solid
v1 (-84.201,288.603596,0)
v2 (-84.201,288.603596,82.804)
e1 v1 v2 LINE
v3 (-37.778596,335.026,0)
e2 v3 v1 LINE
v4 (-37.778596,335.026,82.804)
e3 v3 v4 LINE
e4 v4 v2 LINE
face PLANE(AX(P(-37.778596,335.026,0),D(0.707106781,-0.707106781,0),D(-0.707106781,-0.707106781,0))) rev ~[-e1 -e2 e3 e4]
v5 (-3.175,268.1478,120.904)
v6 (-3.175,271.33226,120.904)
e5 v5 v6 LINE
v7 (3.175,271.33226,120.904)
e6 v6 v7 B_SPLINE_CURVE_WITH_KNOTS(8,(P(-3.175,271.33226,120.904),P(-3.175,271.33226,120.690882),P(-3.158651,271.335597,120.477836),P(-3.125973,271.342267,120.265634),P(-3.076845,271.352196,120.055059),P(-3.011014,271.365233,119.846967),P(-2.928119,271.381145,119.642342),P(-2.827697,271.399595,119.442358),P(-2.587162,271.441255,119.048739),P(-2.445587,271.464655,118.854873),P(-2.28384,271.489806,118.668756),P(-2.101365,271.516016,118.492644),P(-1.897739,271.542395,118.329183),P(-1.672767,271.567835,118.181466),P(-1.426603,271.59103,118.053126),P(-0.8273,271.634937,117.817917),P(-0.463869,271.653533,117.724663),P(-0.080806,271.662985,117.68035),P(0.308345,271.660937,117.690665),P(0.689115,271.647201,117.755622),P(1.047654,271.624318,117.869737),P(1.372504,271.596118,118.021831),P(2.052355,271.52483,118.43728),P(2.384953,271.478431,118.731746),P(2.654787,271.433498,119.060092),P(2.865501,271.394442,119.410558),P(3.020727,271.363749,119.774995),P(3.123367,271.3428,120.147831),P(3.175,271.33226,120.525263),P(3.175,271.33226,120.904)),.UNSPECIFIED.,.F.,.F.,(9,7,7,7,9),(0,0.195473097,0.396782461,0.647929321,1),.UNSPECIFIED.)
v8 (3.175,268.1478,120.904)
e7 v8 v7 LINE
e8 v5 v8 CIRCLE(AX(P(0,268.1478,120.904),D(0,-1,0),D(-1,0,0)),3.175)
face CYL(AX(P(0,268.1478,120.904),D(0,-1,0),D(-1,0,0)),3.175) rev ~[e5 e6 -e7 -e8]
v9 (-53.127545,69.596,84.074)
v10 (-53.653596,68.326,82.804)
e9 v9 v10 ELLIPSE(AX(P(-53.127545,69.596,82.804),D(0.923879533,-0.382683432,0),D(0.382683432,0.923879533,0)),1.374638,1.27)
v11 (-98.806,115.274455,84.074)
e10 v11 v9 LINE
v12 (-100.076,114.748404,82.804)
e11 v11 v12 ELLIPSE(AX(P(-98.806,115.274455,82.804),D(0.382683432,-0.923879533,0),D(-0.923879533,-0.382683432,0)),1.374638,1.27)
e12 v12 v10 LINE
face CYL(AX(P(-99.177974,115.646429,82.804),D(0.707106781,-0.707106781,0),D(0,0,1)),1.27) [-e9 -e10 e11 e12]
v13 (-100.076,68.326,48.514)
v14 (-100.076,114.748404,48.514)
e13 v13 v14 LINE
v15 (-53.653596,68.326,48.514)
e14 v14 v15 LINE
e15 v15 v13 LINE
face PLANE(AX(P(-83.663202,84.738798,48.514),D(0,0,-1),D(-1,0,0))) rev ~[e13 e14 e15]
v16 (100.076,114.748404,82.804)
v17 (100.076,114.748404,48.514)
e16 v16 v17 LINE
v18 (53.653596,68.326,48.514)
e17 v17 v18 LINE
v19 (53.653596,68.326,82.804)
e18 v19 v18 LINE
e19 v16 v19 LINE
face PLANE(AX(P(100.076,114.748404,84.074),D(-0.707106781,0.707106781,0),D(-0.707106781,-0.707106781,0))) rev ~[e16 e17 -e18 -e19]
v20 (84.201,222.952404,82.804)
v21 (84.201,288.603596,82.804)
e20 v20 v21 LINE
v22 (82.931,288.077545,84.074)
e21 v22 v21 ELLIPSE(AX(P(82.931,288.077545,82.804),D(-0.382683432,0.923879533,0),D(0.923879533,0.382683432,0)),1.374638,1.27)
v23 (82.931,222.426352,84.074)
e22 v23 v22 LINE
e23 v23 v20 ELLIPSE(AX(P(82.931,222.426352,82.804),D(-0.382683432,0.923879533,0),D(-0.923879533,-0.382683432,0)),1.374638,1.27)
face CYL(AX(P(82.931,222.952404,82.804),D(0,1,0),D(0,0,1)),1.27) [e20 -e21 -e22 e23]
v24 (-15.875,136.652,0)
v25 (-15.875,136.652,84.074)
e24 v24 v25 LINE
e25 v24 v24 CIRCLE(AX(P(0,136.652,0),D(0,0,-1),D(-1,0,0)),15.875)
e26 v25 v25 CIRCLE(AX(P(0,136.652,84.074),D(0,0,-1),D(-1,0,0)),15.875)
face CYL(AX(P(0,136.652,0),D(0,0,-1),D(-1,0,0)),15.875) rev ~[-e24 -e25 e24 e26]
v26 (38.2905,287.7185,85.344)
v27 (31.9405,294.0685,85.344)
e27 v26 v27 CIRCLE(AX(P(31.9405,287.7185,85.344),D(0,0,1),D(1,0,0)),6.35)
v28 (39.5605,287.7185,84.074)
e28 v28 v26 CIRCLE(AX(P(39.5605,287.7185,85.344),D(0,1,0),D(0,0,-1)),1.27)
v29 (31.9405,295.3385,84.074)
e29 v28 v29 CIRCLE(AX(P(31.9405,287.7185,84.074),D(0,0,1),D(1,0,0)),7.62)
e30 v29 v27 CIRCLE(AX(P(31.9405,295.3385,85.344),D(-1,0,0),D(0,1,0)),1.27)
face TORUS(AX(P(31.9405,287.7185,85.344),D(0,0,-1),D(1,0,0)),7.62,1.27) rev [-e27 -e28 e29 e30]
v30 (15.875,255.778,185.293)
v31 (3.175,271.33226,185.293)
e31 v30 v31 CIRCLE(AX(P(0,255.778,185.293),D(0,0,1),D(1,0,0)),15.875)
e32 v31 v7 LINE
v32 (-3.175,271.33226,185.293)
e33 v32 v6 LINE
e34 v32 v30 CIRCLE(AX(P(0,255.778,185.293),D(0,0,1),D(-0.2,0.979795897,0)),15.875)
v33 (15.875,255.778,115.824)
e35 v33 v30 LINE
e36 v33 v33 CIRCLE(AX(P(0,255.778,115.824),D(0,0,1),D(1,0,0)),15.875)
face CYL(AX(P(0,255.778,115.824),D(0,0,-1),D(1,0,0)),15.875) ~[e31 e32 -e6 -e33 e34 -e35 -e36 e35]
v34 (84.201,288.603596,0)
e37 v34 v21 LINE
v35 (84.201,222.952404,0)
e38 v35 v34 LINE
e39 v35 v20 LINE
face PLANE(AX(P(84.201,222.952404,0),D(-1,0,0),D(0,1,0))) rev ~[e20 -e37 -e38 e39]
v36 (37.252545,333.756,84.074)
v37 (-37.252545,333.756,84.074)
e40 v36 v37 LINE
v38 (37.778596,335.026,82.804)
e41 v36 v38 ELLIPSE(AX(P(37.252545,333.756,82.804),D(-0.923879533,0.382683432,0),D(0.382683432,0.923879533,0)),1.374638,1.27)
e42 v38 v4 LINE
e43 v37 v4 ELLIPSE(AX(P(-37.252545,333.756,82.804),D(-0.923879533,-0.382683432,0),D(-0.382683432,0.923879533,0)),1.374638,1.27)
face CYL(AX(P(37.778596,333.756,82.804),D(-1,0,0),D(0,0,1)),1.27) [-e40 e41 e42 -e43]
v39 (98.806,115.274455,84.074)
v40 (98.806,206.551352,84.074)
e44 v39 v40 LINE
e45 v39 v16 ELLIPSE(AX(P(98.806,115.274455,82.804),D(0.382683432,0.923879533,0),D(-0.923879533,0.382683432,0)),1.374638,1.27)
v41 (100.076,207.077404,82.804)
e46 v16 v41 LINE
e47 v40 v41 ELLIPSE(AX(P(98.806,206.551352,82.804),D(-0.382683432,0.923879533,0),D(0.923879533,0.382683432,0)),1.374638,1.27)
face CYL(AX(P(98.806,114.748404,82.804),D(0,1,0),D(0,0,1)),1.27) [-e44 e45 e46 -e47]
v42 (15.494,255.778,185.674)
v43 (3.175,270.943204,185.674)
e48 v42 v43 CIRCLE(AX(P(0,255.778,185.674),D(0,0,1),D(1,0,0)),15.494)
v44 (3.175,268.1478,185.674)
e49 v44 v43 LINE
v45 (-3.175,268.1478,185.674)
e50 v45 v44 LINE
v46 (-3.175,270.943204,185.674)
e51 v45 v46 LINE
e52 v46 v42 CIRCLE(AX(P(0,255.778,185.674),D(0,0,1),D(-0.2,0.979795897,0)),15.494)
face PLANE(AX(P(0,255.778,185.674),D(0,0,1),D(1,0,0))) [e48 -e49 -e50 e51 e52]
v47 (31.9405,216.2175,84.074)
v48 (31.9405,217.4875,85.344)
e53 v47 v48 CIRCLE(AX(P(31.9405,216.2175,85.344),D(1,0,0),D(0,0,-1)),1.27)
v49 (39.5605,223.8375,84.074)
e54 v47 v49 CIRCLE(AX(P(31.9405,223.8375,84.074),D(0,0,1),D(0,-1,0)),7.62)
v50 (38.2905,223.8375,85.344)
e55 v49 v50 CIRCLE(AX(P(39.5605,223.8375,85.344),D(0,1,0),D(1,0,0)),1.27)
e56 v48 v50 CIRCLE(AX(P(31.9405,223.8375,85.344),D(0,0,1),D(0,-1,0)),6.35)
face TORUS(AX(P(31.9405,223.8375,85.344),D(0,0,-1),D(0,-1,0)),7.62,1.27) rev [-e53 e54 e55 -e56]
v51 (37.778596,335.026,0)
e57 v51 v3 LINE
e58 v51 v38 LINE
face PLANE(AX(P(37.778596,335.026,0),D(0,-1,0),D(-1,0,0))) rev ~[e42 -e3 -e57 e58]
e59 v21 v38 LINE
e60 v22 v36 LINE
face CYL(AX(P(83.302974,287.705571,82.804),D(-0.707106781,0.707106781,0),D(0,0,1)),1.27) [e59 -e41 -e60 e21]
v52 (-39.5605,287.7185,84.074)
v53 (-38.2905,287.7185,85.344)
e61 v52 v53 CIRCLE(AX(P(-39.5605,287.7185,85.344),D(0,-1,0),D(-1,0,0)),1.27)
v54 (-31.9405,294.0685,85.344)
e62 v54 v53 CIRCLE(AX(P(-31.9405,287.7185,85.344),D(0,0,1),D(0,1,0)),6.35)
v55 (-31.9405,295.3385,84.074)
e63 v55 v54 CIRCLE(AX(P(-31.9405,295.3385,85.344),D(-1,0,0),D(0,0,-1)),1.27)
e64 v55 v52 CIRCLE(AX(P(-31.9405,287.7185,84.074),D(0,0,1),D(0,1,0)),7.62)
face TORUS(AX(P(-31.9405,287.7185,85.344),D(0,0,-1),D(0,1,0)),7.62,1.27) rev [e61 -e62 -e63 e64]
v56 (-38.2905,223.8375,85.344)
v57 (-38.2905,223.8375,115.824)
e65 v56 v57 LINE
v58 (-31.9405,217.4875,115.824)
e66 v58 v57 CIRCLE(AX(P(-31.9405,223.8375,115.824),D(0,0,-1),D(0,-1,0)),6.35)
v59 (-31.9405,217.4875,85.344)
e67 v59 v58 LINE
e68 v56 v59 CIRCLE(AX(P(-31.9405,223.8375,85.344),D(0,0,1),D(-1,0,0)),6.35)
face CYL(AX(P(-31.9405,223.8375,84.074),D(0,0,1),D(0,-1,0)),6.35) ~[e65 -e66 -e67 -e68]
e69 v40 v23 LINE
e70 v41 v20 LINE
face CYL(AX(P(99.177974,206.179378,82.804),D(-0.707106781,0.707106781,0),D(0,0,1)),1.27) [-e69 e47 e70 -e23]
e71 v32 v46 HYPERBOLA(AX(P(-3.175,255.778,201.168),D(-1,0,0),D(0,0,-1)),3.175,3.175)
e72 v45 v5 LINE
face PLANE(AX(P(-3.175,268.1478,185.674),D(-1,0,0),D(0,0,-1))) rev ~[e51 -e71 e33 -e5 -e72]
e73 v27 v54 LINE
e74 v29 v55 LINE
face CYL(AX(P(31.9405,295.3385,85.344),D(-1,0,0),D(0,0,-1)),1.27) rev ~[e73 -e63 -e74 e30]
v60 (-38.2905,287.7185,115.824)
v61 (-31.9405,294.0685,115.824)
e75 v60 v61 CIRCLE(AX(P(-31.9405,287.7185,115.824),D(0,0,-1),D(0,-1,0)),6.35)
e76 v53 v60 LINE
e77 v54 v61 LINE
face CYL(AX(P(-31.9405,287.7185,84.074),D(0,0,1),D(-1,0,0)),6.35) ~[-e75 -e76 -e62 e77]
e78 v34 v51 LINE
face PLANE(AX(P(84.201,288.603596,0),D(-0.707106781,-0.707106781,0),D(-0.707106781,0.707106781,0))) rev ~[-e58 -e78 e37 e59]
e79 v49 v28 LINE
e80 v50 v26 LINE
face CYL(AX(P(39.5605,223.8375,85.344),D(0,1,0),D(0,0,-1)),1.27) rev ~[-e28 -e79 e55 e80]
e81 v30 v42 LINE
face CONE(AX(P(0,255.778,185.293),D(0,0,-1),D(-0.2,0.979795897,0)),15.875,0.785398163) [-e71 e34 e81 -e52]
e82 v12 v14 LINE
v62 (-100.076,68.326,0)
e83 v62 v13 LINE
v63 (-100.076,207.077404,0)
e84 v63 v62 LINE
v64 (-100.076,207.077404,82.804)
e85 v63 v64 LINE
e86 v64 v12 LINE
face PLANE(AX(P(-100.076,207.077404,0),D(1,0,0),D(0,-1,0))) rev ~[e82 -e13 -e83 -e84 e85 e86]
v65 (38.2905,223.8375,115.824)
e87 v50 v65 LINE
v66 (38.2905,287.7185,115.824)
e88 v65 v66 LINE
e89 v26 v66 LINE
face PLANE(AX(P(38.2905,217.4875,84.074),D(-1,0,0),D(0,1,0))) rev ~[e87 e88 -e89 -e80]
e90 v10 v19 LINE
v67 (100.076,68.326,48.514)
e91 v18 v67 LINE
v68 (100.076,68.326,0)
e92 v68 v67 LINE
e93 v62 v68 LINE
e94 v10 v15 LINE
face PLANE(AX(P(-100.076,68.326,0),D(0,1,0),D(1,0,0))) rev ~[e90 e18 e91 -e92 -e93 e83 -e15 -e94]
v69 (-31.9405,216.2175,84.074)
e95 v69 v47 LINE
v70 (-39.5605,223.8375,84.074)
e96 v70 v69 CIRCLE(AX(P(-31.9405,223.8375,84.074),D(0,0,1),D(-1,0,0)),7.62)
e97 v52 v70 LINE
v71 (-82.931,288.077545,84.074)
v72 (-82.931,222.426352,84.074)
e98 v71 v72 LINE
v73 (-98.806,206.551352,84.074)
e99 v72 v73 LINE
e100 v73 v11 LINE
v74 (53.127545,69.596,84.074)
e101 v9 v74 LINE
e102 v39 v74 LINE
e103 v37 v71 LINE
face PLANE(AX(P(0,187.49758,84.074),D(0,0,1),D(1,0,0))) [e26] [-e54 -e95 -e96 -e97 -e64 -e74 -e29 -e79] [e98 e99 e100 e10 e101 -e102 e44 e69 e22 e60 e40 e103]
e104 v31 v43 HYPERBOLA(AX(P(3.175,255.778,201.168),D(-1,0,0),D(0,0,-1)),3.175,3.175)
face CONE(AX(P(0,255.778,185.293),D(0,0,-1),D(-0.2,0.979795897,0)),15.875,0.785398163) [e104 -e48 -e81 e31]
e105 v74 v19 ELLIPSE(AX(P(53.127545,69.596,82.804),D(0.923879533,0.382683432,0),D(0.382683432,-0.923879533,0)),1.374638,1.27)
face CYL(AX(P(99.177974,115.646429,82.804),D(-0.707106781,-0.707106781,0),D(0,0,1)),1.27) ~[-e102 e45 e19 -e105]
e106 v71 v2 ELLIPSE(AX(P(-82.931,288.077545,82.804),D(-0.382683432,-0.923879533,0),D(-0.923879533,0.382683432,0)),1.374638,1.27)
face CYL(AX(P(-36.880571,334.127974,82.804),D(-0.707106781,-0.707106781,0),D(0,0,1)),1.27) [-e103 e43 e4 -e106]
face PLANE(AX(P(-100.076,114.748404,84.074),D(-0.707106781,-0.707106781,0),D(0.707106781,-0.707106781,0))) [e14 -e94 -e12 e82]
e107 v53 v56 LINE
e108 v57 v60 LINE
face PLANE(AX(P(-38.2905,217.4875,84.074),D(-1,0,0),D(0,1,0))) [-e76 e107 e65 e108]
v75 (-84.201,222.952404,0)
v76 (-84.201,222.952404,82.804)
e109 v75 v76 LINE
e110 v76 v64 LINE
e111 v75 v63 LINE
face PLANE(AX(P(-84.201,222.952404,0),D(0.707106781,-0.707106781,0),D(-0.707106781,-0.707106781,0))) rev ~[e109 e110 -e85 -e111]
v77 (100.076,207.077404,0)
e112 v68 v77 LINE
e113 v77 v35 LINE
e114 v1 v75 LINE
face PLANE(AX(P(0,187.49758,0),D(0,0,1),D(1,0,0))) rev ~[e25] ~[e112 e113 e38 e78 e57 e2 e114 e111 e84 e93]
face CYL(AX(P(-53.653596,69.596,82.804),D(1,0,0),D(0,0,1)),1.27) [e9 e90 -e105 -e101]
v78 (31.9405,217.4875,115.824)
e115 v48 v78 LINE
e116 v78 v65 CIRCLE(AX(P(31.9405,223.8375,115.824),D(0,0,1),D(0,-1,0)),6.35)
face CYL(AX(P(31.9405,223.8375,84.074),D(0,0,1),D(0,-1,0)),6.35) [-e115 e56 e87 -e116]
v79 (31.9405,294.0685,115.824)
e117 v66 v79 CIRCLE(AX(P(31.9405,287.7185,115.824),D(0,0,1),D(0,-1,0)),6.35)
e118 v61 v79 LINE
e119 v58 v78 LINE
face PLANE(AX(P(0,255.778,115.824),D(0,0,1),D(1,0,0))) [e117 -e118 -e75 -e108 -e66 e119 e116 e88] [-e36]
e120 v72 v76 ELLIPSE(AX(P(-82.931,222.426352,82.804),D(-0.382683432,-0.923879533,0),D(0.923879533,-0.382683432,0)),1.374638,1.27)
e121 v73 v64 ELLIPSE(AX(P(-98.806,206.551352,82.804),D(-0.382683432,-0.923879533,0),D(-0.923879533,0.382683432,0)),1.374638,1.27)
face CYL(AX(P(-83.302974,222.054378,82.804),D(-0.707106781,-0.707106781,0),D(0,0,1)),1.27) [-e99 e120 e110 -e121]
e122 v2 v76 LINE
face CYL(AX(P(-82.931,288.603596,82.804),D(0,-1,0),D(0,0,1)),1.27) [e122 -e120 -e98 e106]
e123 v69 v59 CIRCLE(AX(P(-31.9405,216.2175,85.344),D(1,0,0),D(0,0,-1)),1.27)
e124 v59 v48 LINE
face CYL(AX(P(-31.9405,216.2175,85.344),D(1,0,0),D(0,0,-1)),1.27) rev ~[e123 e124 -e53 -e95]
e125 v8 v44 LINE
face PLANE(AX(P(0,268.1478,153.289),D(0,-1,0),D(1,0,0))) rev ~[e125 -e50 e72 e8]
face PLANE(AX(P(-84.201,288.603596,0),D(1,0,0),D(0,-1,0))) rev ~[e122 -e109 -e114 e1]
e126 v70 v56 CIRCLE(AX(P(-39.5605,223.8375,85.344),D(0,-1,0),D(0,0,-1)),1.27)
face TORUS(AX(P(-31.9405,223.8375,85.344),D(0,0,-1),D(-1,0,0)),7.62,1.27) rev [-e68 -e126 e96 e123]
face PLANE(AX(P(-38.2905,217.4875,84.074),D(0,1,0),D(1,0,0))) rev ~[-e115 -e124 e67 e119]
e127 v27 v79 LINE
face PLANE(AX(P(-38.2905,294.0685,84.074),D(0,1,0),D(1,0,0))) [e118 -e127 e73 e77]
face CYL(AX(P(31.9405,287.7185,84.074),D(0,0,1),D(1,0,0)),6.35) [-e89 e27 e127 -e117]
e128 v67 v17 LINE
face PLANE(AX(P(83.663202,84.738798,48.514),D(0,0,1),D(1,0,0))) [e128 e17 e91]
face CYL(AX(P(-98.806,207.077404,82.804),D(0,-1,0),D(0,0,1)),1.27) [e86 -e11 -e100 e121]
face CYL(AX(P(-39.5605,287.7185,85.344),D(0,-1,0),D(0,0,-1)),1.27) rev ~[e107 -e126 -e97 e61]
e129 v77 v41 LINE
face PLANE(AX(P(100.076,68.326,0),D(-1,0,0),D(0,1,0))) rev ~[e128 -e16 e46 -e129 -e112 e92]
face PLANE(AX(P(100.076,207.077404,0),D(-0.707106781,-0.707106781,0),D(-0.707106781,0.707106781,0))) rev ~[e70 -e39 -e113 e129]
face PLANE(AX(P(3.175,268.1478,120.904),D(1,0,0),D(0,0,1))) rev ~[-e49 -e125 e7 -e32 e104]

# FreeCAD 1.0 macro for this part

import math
import FreeCAD as App
import Part
import Sketcher
from FreeCAD import Vector
Q = App.Units.Quantity


def edges_at(feature, points):
    """Names of the edges that pass closest to the given points."""
    edges = feature.Shape.Edges
    near = lambda p: min(range(len(edges)), key=lambda i: edges[i].distToShape(Part.Vertex(*p))[0])
    return sorted({f"Edge{near(p) + 1}" for p in points})


def add_polygon(sketch, points):
    """Adds a closed chain of lines whose ends are joined by coincident constraints."""
    first, n = sketch.GeometryCount, len(points)
    for a, b in zip(points, points[1:] + points[:1]):
        sketch.addGeometry(Part.LineSegment(App.Vector(*a, 0), App.Vector(*b, 0)), False)
    for i in range(n):
        sketch.addConstraint(Sketcher.Constraint("Coincident", first + i, 2, first + (i + 1) % n, 1))

doc = App.newDocument("Part")
body = doc.addObject("PartDesign::Body", "Body")

# Sketch on XY plane
sketch1 = body.newObject("Sketcher::SketchObject", "Sketch")
sketch1.AttachmentSupport = (doc.getObject("XY_Plane"), [""])
sketch1.MapMode = "FlatFace"
add_polygon(sketch1, [(-100, 68), (100, 68), (100, 207), (84, 223), (84, 289), (38, 335), (-38, 335), (-84, 289), (-84, 223), (-100, 207)])  # lines 0-9
sketch1.addConstraint(Sketcher.Constraint("Horizontal", 0))
sketch1.addConstraint(Sketcher.Constraint("Vertical", 1))
sketch1.addConstraint(Sketcher.Constraint("Vertical", 3))
sketch1.addConstraint(Sketcher.Constraint("Horizontal", 5))
sketch1.addConstraint(Sketcher.Constraint("Vertical", 7))
sketch1.addConstraint(Sketcher.Constraint("Vertical", 9))
sketch1.addConstraint(Sketcher.Constraint("Symmetric", 3, 2, 6, 2, -2))
sketch1.addConstraint(Sketcher.Constraint("Symmetric", 1, 2, 8, 2, -2))
sketch1.addConstraint(Sketcher.Constraint("Parallel", 2, 4))
sketch1.addConstraint(Sketcher.Constraint("Perpendicular", 4, 6))
sketch1.addConstraint(Sketcher.Constraint("Parallel", 6, 8))
sketch1.addConstraint(Sketcher.Constraint("Horizontal", 2, 2, 7, 2))
sketch1.addConstraint(Sketcher.Constraint("DistanceX", 0, 1, 0, 2, Q("7.88 in")))
sketch1.addConstraint(Sketcher.Constraint("DistanceY", 0, 2, 4, 2, Q("10.5 in")))
sketch1.addConstraint(Sketcher.Constraint("DistanceY", -1, 1, 0, 2, Q("2.69 in")))
sketch1.addConstraint(Sketcher.Constraint("DistanceX", 6, 2, 3, 2, Q("6.63 in")))
sketch1.addConstraint(Sketcher.Constraint("DistanceX", 5, 2, 5, 1, Q("75.557193 mm")))
sketch1.addConstraint(Sketcher.Constraint("DistanceY", 1, 1, 1, 2, Q("138.751404 mm")))
pad1 = body.newObject("PartDesign::Pad", "Pad")
pad1.Profile = sketch1
pad1.Length = Q("3.31 in")

# Sketch on XY plane
sketch2 = body.newObject("Sketcher::SketchObject", "Sketch001")
sketch2.AttachmentSupport = (doc.getObject("XY_Plane"), [""])
sketch2.MapMode = "FlatFace"
sketch2.AttachmentOffset = App.Placement(Vector(0, 0, 3.31 * 25.4), App.Rotation())
add_polygon(sketch2, [(-38, 294), (-38, 217), (38, 217), (38, 294)])  # lines 0-3
sketch2.addConstraint(Sketcher.Constraint("Vertical", 0))
sketch2.addConstraint(Sketcher.Constraint("Horizontal", 1))
sketch2.addConstraint(Sketcher.Constraint("Vertical", 2))
sketch2.addConstraint(Sketcher.Constraint("Horizontal", 3))
sketch2.addConstraint(Sketcher.Constraint("Equal", 3, 0))
sketch2.addConstraint(Sketcher.Constraint("DistanceX", 1, 1, 1, 2, Q("3.015 in")))
sketch2.addConstraint(Sketcher.Constraint("DistanceY", -1, 1, 0, 2, Q("8.5625 in")))
sketch2.addConstraint(Sketcher.Constraint("DistanceX", 0, 2, -1, 1, Q("1.5075 in")))
pad2 = body.newObject("PartDesign::Pad", "Pad001")
pad2.Profile = sketch2
pad2.Length = Q("1.25 in")

# Sketch on XY plane
sketch3 = body.newObject("Sketcher::SketchObject", "Sketch002")
sketch3.AttachmentSupport = (doc.getObject("XY_Plane"), [""])
sketch3.MapMode = "FlatFace"
sketch3.AttachmentOffset = App.Placement(Vector(0, 0, 4.56 * 25.4), App.Rotation())
sketch3.addGeometry(Part.Circle(Vector(0, 256, 0), Vector(0, 0, 1), 16), False)
sketch3.addConstraint(Sketcher.Constraint("PointOnObject", 0, 3, -2))
sketch3.addConstraint(Sketcher.Constraint("Diameter", 0, Q("1.25 in")))
sketch3.addConstraint(Sketcher.Constraint("DistanceY", -1, 1, 0, 3, Q("10.07 in")))
pad3 = body.newObject("PartDesign::Pad", "Pad002")
pad3.Profile = sketch3
pad3.Length = Q("2.75 in")

# Sketch on XY plane
sketch4 = body.newObject("Sketcher::SketchObject", "Sketch003")
sketch4.AttachmentSupport = (doc.getObject("XY_Plane"), [""])
sketch4.MapMode = "FlatFace"
sketch4.AttachmentOffset = App.Placement(Vector(0, 0, 3.31 * 25.4), App.Rotation())
add_polygon(sketch4, [(100, 115), (54, 68), (100, 68)])  # lines 0-2
add_polygon(sketch4, [(-100, 115), (-100, 68), (-54, 68)])  # lines 3-5
sketch4.addConstraint(Sketcher.Constraint("Horizontal", 1))
sketch4.addConstraint(Sketcher.Constraint("Vertical", 2))
sketch4.addConstraint(Sketcher.Constraint("Vertical", 3))
sketch4.addConstraint(Sketcher.Constraint("Horizontal", 4))
sketch4.addConstraint(Sketcher.Constraint("Symmetric", 1, 2, 3, 2, -2))
sketch4.addConstraint(Sketcher.Constraint("Perpendicular", 0, 5))
sketch4.addConstraint(Sketcher.Constraint("Horizontal", 2, 2, 5, 2))
sketch4.addConstraint(Sketcher.Constraint("Equal", 1, 4))
sketch4.addConstraint(Sketcher.Constraint("DistanceY", -1, 1, 0, 2, Q("2.69 in")))
sketch4.addConstraint(Sketcher.Constraint("DistanceX", -1, 1, 1, 2, Q("3.94 in")))
sketch4.addConstraint(Sketcher.Constraint("DistanceX", 1, 1, 1, 2, Q("46.422404 mm")))
pocket1 = body.newObject("PartDesign::Pocket", "Pocket")
pocket1.Profile = sketch4
pocket1.Length = Q("1.4 in")
doc.recompute()

fillet = body.newObject("PartDesign::Fillet", "Fillet")
fillet.Base = (pocket1, edges_at(pocket1, [
    (-38.291, 294.068, 99.949),
    (-38.291, 217.488, 99.949),
    (38.291, 217.488, 99.949),
    (38.291, 294.068, 99.949),
]))
fillet.Radius = Q("0.25 in")
doc.recompute()

fillet2 = body.newObject("PartDesign::Fillet", "Fillet001")
fillet2.Base = (fillet, edges_at(fillet, [
    (100.076, 160.913, 84.074),
    (76.865, 91.537, 84.074),
    (92.138, 215.015, 84.074),
    (84.201, 255.778, 84.074),
    (60.99, 311.815, 84.074),
    (0, 335.026, 84.074),
    (0, 68.326, 84.074),
    (-60.99, 311.815, 84.074),
    (-84.201, 255.778, 84.074),
    (-92.138, 215.015, 84.074),
    (-100.076, 160.913, 84.074),
    (-76.865, 91.537, 84.074),
    (0, 217.488, 84.074),
    (-38.291, 255.778, 84.074),
    (38.291, 255.778, 84.074),
    (0, 294.068, 84.074),
    (-36.431, 219.347, 84.074),
    (36.431, 219.347, 84.074),
    (-36.431, 292.209, 84.074),
    (36.431, 292.209, 84.074),
]))
fillet2.Radius = Q("0.05 in")

# Sketch on XZ plane
sketch5 = body.newObject("Sketcher::SketchObject", "Sketch004")
sketch5.AttachmentSupport = (doc.getObject("XZ_Plane"), [""])
sketch5.MapMode = "FlatFace"
sketch5.AttachmentOffset = App.Placement(Vector(0, 0, -10.557 * 25.4), App.Rotation())
sketch5.addGeometry(Part.LineSegment(Vector(-3.2, 120.9, 0), Vector(-3.2, 185.7, 0)), False)
sketch5.addGeometry(Part.ArcOfCircle(Part.Circle(Vector(0, 185.7, 0), Vector(0, 0, 1), 3.2), math.radians(0), math.radians(180)), False)
sketch5.addGeometry(Part.LineSegment(Vector(3.2, 185.7, 0), Vector(3.2, 120.9, 0)), False)
sketch5.addGeometry(Part.ArcOfCircle(Part.Circle(Vector(0, 120.9, 0), Vector(0, 0, 1), 3.2), math.radians(180), math.radians(360)), False)
sketch5.addConstraint(Sketcher.Constraint("Tangent", 0, 2, 1, 2))
sketch5.addConstraint(Sketcher.Constraint("Tangent", 1, 1, 2, 1))
sketch5.addConstraint(Sketcher.Constraint("Tangent", 2, 2, 3, 2))
sketch5.addConstraint(Sketcher.Constraint("Tangent", 3, 1, 0, 1))
sketch5.addConstraint(Sketcher.Constraint("Vertical", 0))
sketch5.addConstraint(Sketcher.Constraint("Vertical", 2))
sketch5.addConstraint(Sketcher.Constraint("PointOnObject", 1, 3, -2))
sketch5.addConstraint(Sketcher.Constraint("Radius", 1, Q("0.125 in")))
sketch5.addConstraint(Sketcher.Constraint("DistanceY", 0, 1, 0, 2, Q("2.55 in")))
sketch5.addConstraint(Sketcher.Constraint("DistanceY", -1, 1, 1, 3, Q("7.31 in")))
pocket2 = body.newObject("PartDesign::Pocket", "Pocket001")
pocket2.Profile = sketch5
pocket2.Type = "ThroughAll"
doc.recompute()

chamfer = body.newObject("PartDesign::Chamfer", "Chamfer")
chamfer.Base = (pocket2, edges_at(pocket2, [(-10.04, 243.481, 185.674)]))
chamfer.Size = Q("0.015 in")

# Sketch on XY plane
sketch6 = body.newObject("Sketcher::SketchObject", "Sketch005")
sketch6.AttachmentSupport = (doc.getObject("XY_Plane"), [""])
sketch6.MapMode = "FlatFace"
sketch6.addGeometry(Part.Circle(Vector(0, 137, 0), Vector(0, 0, 1), 16), False)
sketch6.addConstraint(Sketcher.Constraint("PointOnObject", 0, 3, -2))
sketch6.addConstraint(Sketcher.Constraint("Diameter", 0, Q("1.25 in")))
sketch6.addConstraint(Sketcher.Constraint("DistanceY", -1, 1, 0, 3, Q("5.38 in")))
pocket3 = body.newObject("PartDesign::Pocket", "Pocket002")
pocket3.Profile = sketch6
pocket3.Type = "ThroughAll"
pocket3.Reversed = True

doc.recompute()
